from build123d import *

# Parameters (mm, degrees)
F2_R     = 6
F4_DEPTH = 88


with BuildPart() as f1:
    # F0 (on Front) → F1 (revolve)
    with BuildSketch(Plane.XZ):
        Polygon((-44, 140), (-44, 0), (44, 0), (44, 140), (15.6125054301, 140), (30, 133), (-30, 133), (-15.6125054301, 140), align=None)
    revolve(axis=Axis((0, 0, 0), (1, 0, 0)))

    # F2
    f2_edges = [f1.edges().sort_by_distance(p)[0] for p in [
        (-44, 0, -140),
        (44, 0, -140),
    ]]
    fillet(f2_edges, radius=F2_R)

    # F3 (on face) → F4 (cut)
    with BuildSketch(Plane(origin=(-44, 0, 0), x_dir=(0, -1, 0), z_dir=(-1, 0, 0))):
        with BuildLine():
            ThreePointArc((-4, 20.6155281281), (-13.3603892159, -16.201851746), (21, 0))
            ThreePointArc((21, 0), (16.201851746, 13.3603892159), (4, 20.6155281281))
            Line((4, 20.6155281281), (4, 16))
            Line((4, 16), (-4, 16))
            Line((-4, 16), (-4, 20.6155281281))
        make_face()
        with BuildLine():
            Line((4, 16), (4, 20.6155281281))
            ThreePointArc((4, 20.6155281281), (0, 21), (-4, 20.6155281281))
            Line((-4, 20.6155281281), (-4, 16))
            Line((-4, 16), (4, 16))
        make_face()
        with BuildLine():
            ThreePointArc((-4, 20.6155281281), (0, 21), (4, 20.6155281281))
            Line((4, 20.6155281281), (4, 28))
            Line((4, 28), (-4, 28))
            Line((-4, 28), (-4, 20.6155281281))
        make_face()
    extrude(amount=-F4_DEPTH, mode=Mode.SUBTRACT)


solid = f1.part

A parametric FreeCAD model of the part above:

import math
import FreeCAD as App
import Part
import Sketcher
from FreeCAD import Vector
Q = App.Units.Quantity


def edges_at(feature, points):
    """Names of the edges that pass closest to the given points."""
    edges = feature.Shape.Edges
    near = lambda p: min(range(len(edges)), key=lambda i: edges[i].distToShape(Part.Vertex(*p))[0])
    return sorted({f"Edge{near(p) + 1}" for p in points})

doc = App.newDocument("Part")
body = doc.addObject("PartDesign::Body", "Body")

# Sketch on XZ plane
sketch1 = body.newObject("Sketcher::SketchObject", "Sketch")
sketch1.AttachmentSupport = (doc.getObject("XZ_Plane"), [""])
sketch1.MapMode = "FlatFace"
sketch1.addGeometry([
    Part.LineSegment(Vector(-44, 140, 0), Vector(-44, 0, 0)),  # 0
    Part.LineSegment(Vector(-44, 0, 0), Vector(44, 0, 0)),  # 1
    Part.LineSegment(Vector(44, 0, 0), Vector(44, 140, 0)),  # 2
    Part.LineSegment(Vector(44, 140, 0), Vector(16, 140, 0)),  # 3
    Part.LineSegment(Vector(16, 140, 0), Vector(30, 133, 0)),  # 4
    Part.LineSegment(Vector(30, 133, 0), Vector(-30, 133, 0)),  # 5
    Part.LineSegment(Vector(-30, 133, 0), Vector(-16, 140, 0)),  # 6
    Part.LineSegment(Vector(-16, 140, 0), Vector(-44, 140, 0)),  # 7
], False)
sketch1.addConstraint([
    Sketcher.Constraint("Coincident", 0, 2, 1, 1),
    Sketcher.Constraint("Coincident", 1, 2, 2, 1),
    Sketcher.Constraint("Coincident", 2, 2, 3, 1),
    Sketcher.Constraint("Coincident", 3, 2, 4, 1),
    Sketcher.Constraint("Coincident", 4, 2, 5, 1),
    Sketcher.Constraint("Coincident", 5, 2, 6, 1),
    Sketcher.Constraint("Coincident", 6, 2, 7, 1),
    Sketcher.Constraint("Coincident", 7, 2, 0, 1),
    Sketcher.Constraint("Vertical", 0),
    Sketcher.Constraint("Horizontal", 1),
    Sketcher.Constraint("Vertical", 2),
    Sketcher.Constraint("Horizontal", 3),
    Sketcher.Constraint("Horizontal", 5),
    Sketcher.Constraint("Horizontal", 7),
    Sketcher.Constraint("Symmetric", 0, 2, 1, 2, -1, 1),
    Sketcher.Constraint("Symmetric", 3, 2, 6, 2, -2),
    Sketcher.Constraint("Equal", 4, 6),
    Sketcher.Constraint("DistanceX", 1, 1, 1, 2, Q("88 mm")),
    Sketcher.Constraint("DistanceX", 5, 2, 5, 1, Q("60 mm")),
    Sketcher.Constraint("DistanceY", 0, 2, 0, 1, Q("140 mm")),
    Sketcher.Constraint("Distance", 4, Q("16 mm")),
    Sketcher.Constraint("DistanceY", -1, 1, 4, 2, Q("133 mm")),
])
revolution = body.newObject("PartDesign::Revolution", "Revolution")
revolution.Profile = sketch1
revolution.ReferenceAxis = (sketch1, ["H_Axis"])
revolution.Angle = 360
doc.recompute()

fillet = body.newObject("PartDesign::Fillet", "Fillet")
fillet.Base = (revolution, edges_at(revolution, [(-44, 0, -140), (44, 0, -140)]))
fillet.Radius = 6

# Sketch on YZ plane
sketch2 = body.newObject("Sketcher::SketchObject", "Sketch001")
sketch2.AttachmentSupport = (doc.getObject("YZ_Plane"), [""])
sketch2.MapMode = "FlatFace"
sketch2.AttachmentOffset = App.Placement(Vector(0, 0, -44), App.Rotation())
sketch2.addGeometry([
    Part.ArcOfCircle(Part.Circle(Vector(0, 0, 0), Vector(0, 0, 1), 21), math.radians(180), math.radians(439)),  # 0
    Part.ArcOfCircle(Part.Circle(Vector(0, 0, 0), Vector(0, 0, 1), 21), math.radians(101), math.radians(180)),  # 1
    Part.LineSegment(Vector(-4, 21, 0), Vector(-4, 28, 0)),  # 2
    Part.LineSegment(Vector(-4, 28, 0), Vector(4, 28, 0)),  # 3
    Part.LineSegment(Vector(4, 28, 0), Vector(4, 21, 0)),  # 4
], False)
sketch2.addConstraint([
    Sketcher.Constraint("Tangent", 0, 1, 1, 2),
    Sketcher.Constraint("Coincident", 1, 1, 2, 1),
    Sketcher.Constraint("Coincident", 2, 2, 3, 1),
    Sketcher.Constraint("Coincident", 3, 2, 4, 1),
    Sketcher.Constraint("Coincident", 4, 2, 0, 2),
    Sketcher.Constraint("Vertical", 2),
    Sketcher.Constraint("Horizontal", 3),
    Sketcher.Constraint("Vertical", 4),
    Sketcher.Constraint("Coincident", 0, 3, -1, 1),
    Sketcher.Constraint("Equal", 0, 1),
    Sketcher.Constraint("PointOnObject", 0, 1, -1),
    Sketcher.Constraint("Horizontal", 1, 1, 4, 2),
    Sketcher.Constraint("Radius", 0, Q("21 mm")),
    Sketcher.Constraint("DistanceX", 3, 1, 3, 2, Q("8 mm")),
    Sketcher.Constraint("DistanceY", -1, 1, 2, 2, Q("28 mm")),
])
pocket1 = body.newObject("PartDesign::Pocket", "Pocket")
pocket1.Profile = sketch2
pocket1.Length = 88
pocket1.Reversed = True

doc.recompute()
